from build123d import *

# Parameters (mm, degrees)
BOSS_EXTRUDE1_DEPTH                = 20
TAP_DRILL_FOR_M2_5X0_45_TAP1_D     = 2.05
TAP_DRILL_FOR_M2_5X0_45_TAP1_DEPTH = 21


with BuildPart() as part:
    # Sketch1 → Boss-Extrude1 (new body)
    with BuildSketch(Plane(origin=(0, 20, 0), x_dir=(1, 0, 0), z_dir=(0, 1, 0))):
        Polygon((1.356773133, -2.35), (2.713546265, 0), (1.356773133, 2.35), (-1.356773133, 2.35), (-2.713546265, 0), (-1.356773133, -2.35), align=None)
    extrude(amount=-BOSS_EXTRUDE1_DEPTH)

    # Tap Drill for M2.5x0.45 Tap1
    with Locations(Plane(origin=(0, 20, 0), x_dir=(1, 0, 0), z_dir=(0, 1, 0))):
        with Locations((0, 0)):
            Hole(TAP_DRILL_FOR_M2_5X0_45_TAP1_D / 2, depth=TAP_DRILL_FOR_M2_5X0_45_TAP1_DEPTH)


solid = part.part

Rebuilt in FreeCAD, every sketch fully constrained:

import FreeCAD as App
import Part
import Sketcher

V = App.Vector
Q = App.Units.Quantity

doc = App.newDocument("Part")
body = doc.addObject("PartDesign::Body", "Body")

# Sketch on XZ plane
sketch1 = doc.addObject("Sketcher::SketchObject", "Sketch")
body.addObject(sketch1)
sketch1.AttachmentSupport = (doc.XZ_Plane, [""])
sketch1.MapMode = "FlatFace"
sketch1.AttachmentOffset = App.Placement(V(0, 0, -20), App.Rotation())
sketch1.addGeometry(Part.LineSegment(V(1.4, 2.4, 0), V(2.7, 0, 0)), False)
sketch1.addGeometry(Part.LineSegment(V(2.7, 0, 0), V(1.4, -2.4, 0)), False)
sketch1.addGeometry(Part.LineSegment(V(1.4, -2.4, 0), V(-1.4, -2.4, 0)), False)
sketch1.addGeometry(Part.LineSegment(V(-1.4, -2.4, 0), V(-2.7, 0, 0)), False)
sketch1.addGeometry(Part.LineSegment(V(-2.7, 0, 0), V(-1.4, 2.4, 0)), False)
sketch1.addGeometry(Part.LineSegment(V(-1.4, 2.4, 0), V(1.4, 2.4, 0)), False)
sketch1.addConstraint(Sketcher.Constraint("Coincident", 0, 2, 1, 1))
sketch1.addConstraint(Sketcher.Constraint("Coincident", 1, 2, 2, 1))
sketch1.addConstraint(Sketcher.Constraint("Coincident", 2, 2, 3, 1))
sketch1.addConstraint(Sketcher.Constraint("Coincident", 3, 2, 4, 1))
sketch1.addConstraint(Sketcher.Constraint("Coincident", 4, 2, 5, 1))
sketch1.addConstraint(Sketcher.Constraint("Coincident", 5, 2, 0, 1))
sketch1.addConstraint(Sketcher.Constraint("Horizontal", 2))
sketch1.addConstraint(Sketcher.Constraint("Horizontal", 5))
sketch1.addConstraint(Sketcher.Constraint("Symmetric", 0, 2, 3, 2, -1, 1))
sketch1.addConstraint(Sketcher.Constraint("Symmetric", 1, 2, 4, 2, -1, 1))
sketch1.addConstraint(Sketcher.Constraint("PointOnObject", 0, 2, -1))
sketch1.addConstraint(Sketcher.Constraint("Parallel", 0, 3))
sketch1.addConstraint(Sketcher.Constraint("Vertical", 2, 2, 4, 2))
sketch1.addConstraint(Sketcher.Constraint("Angle", 0, Q("-60 deg")))
sketch1.addConstraint(Sketcher.Constraint("DistanceY", 2, 2, 4, 2, Q("4.7 mm")))
sketch1.addConstraint(Sketcher.Constraint("DistanceX", 2, 2, 2, 1, Q("2.713546 mm")))
pad1 = doc.addObject("PartDesign::Pad", "Pad")
body.addObject(pad1)
pad1.Profile = sketch1
pad1.Length = 20

# Sketch on XZ plane
sketch2 = doc.addObject("Sketcher::SketchObject", "Sketch001")
body.addObject(sketch2)
sketch2.AttachmentSupport = (doc.XZ_Plane, [""])
sketch2.MapMode = "FlatFace"
sketch2.AttachmentOffset = App.Placement(V(0, 0, -20), App.Rotation())
sketch2.addGeometry(Part.Circle(V(0, 0, 0), V(0, 0, 1), 1), False)
sketch2.addConstraint(Sketcher.Constraint("Coincident", 0, 3, -1, 1))
sketch2.addConstraint(Sketcher.Constraint("Diameter", 0, Q("2.05 mm")))
doc.recompute()
hole = doc.addObject("PartDesign::Hole", "Hole")
body.addObject(hole)
hole.Profile = sketch2
hole.ThreadType = "None"
hole.Diameter = 2.05
hole.DepthType = "Dimension"
hole.Depth = 21
hole.DrillPoint = "Flat"
hole.Reversed = True

doc.recompute()
